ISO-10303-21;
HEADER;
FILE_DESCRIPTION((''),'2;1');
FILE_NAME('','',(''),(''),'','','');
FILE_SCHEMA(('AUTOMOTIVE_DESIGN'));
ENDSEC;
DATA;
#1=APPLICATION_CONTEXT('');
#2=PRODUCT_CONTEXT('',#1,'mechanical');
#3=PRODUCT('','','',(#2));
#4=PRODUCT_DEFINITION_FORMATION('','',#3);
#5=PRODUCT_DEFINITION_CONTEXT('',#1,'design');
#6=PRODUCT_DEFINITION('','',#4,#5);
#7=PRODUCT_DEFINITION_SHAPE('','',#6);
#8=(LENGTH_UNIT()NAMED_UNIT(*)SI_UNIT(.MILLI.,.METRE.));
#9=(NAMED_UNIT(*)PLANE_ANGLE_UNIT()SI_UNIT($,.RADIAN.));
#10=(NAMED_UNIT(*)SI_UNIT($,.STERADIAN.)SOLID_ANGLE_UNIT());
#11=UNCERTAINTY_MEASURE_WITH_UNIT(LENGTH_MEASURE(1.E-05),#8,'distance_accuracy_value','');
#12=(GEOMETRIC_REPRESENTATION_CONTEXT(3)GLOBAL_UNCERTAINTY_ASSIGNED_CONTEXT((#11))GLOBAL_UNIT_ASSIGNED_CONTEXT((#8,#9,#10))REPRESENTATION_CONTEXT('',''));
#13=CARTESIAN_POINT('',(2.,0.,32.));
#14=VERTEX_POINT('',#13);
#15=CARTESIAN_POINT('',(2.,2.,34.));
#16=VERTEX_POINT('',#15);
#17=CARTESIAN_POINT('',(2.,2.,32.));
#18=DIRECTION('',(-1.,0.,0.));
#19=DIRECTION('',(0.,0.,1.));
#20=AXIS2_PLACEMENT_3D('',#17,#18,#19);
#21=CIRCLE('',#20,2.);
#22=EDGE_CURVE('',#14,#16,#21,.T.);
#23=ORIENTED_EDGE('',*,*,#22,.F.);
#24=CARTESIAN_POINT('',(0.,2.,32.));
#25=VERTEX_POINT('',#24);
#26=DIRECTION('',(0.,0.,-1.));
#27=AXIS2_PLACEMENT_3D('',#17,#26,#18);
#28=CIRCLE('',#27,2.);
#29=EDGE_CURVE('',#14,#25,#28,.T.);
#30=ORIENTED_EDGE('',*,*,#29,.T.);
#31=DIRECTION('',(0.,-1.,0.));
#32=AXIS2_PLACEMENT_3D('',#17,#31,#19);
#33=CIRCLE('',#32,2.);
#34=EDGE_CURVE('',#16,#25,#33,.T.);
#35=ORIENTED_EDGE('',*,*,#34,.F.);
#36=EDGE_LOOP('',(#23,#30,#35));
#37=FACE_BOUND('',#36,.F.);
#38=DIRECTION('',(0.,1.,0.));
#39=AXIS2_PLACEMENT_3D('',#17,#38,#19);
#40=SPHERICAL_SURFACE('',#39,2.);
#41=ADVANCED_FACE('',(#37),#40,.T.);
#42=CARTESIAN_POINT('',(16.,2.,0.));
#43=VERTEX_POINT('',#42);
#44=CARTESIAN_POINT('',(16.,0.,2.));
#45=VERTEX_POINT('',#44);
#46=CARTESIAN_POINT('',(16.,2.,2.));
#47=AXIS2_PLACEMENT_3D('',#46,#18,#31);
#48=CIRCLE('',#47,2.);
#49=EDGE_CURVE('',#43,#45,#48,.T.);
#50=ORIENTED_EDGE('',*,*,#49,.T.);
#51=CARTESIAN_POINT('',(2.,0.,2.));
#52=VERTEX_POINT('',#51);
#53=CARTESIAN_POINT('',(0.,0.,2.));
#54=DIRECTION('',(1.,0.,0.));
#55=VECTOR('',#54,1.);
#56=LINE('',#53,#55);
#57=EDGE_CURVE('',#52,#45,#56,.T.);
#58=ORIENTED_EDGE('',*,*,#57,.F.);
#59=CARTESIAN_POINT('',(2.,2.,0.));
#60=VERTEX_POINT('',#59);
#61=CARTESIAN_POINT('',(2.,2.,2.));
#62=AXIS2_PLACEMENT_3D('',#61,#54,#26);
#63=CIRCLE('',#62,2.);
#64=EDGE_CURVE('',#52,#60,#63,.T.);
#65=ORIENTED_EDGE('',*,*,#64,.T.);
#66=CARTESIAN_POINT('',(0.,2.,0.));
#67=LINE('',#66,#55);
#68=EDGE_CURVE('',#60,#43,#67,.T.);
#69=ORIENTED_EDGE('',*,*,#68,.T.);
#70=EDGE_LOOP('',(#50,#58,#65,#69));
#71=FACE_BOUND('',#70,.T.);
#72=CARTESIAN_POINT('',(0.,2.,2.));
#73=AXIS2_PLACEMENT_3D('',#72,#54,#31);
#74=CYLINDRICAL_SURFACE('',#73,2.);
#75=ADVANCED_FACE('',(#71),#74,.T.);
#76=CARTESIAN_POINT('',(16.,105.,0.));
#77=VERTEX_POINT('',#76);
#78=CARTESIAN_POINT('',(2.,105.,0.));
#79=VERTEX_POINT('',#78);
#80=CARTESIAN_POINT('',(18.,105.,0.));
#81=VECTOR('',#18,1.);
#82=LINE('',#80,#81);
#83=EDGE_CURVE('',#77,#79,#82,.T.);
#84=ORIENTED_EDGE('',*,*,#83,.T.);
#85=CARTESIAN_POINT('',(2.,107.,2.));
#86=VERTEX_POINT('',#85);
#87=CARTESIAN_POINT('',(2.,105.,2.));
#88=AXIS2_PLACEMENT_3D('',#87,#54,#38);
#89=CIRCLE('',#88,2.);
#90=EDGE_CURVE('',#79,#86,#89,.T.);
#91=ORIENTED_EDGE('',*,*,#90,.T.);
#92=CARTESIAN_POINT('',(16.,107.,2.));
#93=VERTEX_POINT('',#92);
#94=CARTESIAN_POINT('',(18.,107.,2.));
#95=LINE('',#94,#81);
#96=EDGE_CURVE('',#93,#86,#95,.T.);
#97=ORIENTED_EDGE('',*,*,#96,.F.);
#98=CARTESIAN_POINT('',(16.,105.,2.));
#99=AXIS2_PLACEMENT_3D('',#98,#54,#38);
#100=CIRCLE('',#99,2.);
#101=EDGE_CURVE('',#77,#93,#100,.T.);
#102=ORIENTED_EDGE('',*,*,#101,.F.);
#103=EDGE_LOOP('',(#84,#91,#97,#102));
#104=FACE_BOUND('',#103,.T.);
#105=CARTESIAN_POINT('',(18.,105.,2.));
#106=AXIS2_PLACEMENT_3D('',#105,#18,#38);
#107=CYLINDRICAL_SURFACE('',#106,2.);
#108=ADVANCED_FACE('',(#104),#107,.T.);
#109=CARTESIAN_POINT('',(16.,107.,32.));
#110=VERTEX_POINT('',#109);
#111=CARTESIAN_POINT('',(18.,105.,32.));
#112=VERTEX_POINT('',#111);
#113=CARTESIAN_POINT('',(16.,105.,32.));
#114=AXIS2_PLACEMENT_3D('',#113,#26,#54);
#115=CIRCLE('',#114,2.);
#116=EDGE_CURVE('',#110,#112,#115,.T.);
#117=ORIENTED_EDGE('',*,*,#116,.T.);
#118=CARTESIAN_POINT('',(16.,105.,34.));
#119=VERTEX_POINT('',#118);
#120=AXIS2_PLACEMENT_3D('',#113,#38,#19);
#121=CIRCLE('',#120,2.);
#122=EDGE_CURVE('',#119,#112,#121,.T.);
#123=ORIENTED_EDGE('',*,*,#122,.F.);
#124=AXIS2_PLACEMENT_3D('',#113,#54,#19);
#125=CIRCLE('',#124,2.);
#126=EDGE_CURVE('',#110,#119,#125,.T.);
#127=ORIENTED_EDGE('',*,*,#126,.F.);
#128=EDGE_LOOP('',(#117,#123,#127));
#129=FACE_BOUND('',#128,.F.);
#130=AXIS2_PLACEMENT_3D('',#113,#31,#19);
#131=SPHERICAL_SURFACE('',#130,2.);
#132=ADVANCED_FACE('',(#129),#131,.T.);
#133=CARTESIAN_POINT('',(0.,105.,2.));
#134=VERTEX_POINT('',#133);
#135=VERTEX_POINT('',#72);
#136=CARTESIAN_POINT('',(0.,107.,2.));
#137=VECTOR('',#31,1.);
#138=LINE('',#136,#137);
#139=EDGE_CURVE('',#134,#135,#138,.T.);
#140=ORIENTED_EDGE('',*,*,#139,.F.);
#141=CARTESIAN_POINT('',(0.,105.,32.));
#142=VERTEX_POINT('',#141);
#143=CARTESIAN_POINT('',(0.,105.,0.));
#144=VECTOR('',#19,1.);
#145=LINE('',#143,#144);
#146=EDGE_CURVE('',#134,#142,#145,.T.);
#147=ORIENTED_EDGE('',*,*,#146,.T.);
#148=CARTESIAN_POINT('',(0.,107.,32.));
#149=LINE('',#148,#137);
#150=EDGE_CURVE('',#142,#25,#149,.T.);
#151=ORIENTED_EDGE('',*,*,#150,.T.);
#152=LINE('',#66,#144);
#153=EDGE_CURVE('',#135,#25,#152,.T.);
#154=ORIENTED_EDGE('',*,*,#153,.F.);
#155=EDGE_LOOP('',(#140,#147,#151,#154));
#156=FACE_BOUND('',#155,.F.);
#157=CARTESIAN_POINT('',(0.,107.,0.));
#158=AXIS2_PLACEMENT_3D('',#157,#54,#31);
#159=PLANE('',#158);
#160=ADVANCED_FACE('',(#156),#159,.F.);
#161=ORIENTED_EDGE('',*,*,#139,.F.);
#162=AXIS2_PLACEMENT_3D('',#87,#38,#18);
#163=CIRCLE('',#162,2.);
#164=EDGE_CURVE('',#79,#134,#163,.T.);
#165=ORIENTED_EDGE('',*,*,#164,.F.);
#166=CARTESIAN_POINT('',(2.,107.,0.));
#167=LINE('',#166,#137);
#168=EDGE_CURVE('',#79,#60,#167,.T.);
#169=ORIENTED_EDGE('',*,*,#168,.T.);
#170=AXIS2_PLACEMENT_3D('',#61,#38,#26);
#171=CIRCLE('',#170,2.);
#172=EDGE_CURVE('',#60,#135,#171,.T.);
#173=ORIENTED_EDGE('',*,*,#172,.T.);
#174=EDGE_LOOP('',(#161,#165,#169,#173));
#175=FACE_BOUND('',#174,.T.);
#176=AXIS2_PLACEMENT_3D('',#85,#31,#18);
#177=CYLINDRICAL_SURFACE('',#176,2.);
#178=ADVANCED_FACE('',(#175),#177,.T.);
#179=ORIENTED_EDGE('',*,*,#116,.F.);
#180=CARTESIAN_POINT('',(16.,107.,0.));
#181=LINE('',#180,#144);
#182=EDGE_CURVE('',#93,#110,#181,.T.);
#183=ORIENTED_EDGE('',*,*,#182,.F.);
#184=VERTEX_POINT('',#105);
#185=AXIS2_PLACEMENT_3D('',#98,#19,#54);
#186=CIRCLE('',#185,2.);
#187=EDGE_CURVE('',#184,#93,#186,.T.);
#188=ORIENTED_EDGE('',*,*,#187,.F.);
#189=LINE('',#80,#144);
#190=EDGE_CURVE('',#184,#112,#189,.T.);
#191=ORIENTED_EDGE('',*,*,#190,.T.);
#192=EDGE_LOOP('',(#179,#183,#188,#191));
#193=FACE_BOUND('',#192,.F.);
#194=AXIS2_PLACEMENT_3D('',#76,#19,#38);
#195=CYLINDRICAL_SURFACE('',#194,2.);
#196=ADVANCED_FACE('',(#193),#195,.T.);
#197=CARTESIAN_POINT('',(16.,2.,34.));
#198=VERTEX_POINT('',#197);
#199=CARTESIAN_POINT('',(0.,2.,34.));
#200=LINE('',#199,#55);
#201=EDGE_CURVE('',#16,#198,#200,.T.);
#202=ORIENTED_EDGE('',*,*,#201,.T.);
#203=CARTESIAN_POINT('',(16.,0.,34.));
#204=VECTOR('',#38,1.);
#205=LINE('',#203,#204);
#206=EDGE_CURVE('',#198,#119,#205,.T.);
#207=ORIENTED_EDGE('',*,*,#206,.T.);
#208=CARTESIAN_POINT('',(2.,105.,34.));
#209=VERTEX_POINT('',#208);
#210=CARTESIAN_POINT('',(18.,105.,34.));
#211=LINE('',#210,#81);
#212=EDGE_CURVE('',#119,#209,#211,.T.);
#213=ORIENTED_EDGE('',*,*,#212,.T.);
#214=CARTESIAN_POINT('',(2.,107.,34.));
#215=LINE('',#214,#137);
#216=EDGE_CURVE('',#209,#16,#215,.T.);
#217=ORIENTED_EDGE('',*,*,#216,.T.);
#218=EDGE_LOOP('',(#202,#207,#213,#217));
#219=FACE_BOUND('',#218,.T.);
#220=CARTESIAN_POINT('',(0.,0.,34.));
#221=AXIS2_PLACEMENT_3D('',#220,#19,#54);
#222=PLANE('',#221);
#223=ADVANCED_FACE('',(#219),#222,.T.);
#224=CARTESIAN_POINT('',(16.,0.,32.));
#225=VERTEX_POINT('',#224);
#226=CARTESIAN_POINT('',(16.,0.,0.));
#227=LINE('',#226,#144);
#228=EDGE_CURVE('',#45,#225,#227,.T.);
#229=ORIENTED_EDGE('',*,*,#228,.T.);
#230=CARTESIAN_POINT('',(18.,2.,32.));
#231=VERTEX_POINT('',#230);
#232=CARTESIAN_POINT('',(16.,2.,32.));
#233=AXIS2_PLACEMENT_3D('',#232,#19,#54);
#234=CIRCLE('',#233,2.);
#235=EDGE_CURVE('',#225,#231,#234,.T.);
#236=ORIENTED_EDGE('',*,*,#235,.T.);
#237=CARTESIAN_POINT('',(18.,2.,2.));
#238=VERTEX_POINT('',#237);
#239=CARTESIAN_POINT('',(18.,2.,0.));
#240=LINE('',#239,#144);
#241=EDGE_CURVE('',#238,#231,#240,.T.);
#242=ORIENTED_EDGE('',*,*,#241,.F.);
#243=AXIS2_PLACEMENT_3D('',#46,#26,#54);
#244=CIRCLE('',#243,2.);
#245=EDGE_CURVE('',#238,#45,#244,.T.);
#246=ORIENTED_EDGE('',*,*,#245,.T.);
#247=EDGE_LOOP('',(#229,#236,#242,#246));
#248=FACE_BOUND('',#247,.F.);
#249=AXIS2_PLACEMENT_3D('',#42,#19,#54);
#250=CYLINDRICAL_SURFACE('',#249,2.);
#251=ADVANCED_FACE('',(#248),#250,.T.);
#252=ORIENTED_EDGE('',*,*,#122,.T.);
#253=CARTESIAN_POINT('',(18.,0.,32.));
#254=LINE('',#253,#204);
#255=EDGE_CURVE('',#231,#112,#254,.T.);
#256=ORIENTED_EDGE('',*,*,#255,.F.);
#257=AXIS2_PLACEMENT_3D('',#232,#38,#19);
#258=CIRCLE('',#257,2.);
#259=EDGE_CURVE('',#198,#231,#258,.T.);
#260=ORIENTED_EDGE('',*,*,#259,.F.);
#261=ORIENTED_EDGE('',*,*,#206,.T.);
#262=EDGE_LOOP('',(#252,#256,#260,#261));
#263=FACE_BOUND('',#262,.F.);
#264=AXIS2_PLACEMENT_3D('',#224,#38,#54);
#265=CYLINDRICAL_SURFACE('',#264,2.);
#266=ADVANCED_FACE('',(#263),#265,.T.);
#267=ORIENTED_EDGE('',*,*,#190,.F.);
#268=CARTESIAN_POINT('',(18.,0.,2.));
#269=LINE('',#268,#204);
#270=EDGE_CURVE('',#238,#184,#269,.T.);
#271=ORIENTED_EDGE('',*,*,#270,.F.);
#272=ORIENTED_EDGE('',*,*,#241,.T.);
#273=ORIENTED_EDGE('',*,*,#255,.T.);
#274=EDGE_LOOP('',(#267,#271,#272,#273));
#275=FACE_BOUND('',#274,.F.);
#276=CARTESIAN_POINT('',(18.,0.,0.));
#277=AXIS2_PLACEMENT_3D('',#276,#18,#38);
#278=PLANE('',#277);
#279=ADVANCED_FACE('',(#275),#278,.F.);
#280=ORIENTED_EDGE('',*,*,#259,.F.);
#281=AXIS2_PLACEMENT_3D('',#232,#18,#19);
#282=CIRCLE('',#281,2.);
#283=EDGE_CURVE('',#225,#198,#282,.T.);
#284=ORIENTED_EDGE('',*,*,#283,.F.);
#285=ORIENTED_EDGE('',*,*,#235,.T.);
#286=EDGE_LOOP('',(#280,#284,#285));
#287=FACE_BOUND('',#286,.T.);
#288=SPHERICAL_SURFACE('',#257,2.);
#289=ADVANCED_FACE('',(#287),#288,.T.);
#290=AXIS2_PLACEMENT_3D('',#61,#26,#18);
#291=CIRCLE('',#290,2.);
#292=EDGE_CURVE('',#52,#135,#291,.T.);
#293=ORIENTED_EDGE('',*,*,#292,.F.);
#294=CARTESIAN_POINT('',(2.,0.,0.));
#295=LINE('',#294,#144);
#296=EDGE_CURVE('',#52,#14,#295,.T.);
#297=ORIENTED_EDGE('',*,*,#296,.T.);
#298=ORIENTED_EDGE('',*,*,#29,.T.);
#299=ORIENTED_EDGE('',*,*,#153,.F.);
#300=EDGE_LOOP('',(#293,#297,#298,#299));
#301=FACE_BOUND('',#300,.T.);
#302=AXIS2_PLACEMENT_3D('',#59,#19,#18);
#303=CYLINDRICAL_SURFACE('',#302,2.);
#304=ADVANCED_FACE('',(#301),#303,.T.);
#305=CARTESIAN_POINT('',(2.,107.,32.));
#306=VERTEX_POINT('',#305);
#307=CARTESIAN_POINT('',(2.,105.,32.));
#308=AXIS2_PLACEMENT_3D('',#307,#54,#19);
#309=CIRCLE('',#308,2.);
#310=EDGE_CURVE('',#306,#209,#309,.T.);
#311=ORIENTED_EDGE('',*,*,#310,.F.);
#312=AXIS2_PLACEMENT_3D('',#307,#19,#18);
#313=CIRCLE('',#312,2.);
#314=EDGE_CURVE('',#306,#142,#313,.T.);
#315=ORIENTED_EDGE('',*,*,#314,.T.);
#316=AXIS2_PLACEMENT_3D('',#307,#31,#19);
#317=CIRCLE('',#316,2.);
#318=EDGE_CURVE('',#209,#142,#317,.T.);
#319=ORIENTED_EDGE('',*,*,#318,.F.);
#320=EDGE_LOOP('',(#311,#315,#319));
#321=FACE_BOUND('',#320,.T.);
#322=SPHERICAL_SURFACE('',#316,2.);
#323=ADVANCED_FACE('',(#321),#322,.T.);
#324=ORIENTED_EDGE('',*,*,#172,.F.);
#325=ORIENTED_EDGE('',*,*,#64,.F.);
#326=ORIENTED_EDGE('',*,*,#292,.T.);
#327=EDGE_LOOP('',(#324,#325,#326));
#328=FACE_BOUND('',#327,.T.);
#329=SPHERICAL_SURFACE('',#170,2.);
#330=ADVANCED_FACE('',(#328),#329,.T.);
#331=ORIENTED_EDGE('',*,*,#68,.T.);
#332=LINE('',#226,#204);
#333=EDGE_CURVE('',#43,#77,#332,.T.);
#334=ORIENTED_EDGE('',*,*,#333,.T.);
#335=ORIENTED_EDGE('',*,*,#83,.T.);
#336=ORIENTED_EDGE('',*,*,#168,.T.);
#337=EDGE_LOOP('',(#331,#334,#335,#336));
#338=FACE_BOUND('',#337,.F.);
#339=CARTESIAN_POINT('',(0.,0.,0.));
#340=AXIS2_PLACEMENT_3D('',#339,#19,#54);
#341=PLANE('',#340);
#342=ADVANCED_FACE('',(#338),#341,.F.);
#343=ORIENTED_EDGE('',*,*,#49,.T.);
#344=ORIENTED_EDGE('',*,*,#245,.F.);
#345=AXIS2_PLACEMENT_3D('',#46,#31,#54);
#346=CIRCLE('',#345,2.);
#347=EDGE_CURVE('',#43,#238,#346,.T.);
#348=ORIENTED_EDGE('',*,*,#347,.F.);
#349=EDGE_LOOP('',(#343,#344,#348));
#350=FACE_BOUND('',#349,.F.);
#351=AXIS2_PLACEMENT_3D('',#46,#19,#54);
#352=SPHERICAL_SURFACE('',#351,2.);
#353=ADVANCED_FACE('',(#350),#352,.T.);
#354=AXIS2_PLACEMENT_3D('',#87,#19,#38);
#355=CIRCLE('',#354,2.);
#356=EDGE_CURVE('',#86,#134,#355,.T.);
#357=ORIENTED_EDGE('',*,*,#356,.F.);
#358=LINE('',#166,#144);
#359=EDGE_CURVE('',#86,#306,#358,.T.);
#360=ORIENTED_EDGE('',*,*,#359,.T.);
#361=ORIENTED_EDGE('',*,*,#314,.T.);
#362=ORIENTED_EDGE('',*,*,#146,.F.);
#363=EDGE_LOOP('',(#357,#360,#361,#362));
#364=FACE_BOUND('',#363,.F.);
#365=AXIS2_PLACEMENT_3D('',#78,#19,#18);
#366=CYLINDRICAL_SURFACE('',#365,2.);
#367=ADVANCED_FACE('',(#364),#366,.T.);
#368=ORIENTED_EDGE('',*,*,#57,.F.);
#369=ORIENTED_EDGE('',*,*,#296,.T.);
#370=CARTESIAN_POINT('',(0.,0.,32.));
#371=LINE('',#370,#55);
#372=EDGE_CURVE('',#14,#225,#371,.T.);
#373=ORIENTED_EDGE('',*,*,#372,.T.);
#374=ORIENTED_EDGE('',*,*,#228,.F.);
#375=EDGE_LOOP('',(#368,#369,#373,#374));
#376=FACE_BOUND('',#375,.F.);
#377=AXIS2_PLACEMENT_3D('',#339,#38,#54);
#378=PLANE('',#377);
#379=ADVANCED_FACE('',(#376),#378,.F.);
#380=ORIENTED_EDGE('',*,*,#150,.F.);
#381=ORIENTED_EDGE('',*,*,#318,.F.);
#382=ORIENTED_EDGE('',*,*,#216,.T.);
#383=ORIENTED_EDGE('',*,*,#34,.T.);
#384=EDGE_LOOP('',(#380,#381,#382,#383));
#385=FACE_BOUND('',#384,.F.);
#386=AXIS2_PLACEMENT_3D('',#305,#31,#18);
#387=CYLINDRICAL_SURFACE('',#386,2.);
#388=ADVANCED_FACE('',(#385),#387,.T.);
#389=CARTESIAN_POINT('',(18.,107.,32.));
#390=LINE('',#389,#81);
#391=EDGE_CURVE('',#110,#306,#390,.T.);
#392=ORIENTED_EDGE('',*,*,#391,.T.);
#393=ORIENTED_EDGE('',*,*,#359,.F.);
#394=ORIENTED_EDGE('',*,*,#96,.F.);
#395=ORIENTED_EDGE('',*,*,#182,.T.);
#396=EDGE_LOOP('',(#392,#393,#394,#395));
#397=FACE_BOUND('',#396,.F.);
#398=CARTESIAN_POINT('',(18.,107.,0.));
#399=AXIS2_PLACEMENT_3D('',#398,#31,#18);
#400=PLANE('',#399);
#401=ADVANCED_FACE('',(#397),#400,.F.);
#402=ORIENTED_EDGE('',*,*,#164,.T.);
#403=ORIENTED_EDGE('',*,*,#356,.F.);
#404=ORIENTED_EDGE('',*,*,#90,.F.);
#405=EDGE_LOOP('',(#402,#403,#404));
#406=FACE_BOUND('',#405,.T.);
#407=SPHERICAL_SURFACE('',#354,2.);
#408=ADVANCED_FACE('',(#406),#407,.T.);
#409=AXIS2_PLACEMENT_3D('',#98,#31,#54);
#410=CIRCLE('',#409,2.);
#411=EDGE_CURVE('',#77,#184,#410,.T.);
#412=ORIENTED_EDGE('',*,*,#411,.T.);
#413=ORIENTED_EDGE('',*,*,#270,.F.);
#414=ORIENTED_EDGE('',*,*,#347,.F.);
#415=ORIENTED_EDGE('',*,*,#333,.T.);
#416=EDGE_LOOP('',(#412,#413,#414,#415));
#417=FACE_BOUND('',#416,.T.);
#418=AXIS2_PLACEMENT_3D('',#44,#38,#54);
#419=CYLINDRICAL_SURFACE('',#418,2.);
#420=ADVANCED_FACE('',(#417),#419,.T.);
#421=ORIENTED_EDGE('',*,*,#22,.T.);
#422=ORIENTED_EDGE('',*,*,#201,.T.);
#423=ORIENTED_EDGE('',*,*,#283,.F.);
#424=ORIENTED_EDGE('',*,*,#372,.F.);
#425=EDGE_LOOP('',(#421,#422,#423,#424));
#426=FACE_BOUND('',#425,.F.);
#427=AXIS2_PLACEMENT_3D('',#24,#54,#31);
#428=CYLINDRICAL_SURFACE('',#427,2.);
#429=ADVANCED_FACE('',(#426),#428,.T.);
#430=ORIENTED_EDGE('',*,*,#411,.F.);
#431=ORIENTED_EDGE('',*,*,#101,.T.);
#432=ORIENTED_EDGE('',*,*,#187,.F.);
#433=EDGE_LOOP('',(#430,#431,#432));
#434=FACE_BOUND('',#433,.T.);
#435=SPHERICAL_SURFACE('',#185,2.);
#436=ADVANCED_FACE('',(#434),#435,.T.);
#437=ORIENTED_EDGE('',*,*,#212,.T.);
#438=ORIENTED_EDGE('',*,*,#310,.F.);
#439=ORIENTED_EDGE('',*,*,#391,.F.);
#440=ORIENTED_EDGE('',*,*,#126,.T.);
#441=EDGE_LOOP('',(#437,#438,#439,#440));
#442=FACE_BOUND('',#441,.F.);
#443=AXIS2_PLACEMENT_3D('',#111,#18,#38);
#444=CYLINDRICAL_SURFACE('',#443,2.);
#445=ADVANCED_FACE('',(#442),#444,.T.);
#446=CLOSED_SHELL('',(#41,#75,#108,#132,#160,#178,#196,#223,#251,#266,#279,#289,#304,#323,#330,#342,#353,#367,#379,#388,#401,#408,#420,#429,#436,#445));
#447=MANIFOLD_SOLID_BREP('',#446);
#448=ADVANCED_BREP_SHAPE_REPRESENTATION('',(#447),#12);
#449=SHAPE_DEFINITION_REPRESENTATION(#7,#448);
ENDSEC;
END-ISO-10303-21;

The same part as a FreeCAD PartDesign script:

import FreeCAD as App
import Part
import Sketcher

doc = App.newDocument("Part")
body = doc.addObject("PartDesign::Body", "Body")

# Sketch on XY plane
sketch1 = body.newObject("Sketcher::SketchObject", "Sketch")
sketch1.AttachmentSupport = (doc.getObject("XY_Plane"), [""])
sketch1.MapMode = "FlatFace"
sketch1.addGeometry([
    Part.LineSegment(App.Vector(0, 107, 0), App.Vector(0, 0, 0)),
    Part.LineSegment(App.Vector(0, 0, 0), App.Vector(18, 0, 0)),
    Part.LineSegment(App.Vector(18, 0, 0), App.Vector(18, 107, 0)),
    Part.LineSegment(App.Vector(18, 107, 0), App.Vector(0, 107, 0)),
], False)
sketch1.addConstraint([
    Sketcher.Constraint("Coincident", 0, 2, 1, 1),
    Sketcher.Constraint("Coincident", 1, 2, 2, 1),
    Sketcher.Constraint("Coincident", 2, 2, 3, 1),
    Sketcher.Constraint("Coincident", 3, 2, 0, 1),
    Sketcher.Constraint("Vertical", 0),
    Sketcher.Constraint("Horizontal", 1),
    Sketcher.Constraint("Vertical", 2),
    Sketcher.Constraint("Horizontal", 3),
    Sketcher.Constraint("Coincident", 0, 2, -1, 1),
    Sketcher.Constraint("DistanceX", 1, 1, 1, 2, 18.0),
    Sketcher.Constraint("DistanceY", 0, 2, 0, 1, 107.0),
])
pad1 = body.newObject("PartDesign::Pad", "Pad")
pad1.Profile = sketch1
pad1.Length = 34
doc.recompute()

fillet = body.newObject("PartDesign::Fillet", "Fillet")
fillet.Base = (pad1, ["Edge1"])
fillet.UseAllEdges = True
fillet.Radius = 2

doc.recompute()
